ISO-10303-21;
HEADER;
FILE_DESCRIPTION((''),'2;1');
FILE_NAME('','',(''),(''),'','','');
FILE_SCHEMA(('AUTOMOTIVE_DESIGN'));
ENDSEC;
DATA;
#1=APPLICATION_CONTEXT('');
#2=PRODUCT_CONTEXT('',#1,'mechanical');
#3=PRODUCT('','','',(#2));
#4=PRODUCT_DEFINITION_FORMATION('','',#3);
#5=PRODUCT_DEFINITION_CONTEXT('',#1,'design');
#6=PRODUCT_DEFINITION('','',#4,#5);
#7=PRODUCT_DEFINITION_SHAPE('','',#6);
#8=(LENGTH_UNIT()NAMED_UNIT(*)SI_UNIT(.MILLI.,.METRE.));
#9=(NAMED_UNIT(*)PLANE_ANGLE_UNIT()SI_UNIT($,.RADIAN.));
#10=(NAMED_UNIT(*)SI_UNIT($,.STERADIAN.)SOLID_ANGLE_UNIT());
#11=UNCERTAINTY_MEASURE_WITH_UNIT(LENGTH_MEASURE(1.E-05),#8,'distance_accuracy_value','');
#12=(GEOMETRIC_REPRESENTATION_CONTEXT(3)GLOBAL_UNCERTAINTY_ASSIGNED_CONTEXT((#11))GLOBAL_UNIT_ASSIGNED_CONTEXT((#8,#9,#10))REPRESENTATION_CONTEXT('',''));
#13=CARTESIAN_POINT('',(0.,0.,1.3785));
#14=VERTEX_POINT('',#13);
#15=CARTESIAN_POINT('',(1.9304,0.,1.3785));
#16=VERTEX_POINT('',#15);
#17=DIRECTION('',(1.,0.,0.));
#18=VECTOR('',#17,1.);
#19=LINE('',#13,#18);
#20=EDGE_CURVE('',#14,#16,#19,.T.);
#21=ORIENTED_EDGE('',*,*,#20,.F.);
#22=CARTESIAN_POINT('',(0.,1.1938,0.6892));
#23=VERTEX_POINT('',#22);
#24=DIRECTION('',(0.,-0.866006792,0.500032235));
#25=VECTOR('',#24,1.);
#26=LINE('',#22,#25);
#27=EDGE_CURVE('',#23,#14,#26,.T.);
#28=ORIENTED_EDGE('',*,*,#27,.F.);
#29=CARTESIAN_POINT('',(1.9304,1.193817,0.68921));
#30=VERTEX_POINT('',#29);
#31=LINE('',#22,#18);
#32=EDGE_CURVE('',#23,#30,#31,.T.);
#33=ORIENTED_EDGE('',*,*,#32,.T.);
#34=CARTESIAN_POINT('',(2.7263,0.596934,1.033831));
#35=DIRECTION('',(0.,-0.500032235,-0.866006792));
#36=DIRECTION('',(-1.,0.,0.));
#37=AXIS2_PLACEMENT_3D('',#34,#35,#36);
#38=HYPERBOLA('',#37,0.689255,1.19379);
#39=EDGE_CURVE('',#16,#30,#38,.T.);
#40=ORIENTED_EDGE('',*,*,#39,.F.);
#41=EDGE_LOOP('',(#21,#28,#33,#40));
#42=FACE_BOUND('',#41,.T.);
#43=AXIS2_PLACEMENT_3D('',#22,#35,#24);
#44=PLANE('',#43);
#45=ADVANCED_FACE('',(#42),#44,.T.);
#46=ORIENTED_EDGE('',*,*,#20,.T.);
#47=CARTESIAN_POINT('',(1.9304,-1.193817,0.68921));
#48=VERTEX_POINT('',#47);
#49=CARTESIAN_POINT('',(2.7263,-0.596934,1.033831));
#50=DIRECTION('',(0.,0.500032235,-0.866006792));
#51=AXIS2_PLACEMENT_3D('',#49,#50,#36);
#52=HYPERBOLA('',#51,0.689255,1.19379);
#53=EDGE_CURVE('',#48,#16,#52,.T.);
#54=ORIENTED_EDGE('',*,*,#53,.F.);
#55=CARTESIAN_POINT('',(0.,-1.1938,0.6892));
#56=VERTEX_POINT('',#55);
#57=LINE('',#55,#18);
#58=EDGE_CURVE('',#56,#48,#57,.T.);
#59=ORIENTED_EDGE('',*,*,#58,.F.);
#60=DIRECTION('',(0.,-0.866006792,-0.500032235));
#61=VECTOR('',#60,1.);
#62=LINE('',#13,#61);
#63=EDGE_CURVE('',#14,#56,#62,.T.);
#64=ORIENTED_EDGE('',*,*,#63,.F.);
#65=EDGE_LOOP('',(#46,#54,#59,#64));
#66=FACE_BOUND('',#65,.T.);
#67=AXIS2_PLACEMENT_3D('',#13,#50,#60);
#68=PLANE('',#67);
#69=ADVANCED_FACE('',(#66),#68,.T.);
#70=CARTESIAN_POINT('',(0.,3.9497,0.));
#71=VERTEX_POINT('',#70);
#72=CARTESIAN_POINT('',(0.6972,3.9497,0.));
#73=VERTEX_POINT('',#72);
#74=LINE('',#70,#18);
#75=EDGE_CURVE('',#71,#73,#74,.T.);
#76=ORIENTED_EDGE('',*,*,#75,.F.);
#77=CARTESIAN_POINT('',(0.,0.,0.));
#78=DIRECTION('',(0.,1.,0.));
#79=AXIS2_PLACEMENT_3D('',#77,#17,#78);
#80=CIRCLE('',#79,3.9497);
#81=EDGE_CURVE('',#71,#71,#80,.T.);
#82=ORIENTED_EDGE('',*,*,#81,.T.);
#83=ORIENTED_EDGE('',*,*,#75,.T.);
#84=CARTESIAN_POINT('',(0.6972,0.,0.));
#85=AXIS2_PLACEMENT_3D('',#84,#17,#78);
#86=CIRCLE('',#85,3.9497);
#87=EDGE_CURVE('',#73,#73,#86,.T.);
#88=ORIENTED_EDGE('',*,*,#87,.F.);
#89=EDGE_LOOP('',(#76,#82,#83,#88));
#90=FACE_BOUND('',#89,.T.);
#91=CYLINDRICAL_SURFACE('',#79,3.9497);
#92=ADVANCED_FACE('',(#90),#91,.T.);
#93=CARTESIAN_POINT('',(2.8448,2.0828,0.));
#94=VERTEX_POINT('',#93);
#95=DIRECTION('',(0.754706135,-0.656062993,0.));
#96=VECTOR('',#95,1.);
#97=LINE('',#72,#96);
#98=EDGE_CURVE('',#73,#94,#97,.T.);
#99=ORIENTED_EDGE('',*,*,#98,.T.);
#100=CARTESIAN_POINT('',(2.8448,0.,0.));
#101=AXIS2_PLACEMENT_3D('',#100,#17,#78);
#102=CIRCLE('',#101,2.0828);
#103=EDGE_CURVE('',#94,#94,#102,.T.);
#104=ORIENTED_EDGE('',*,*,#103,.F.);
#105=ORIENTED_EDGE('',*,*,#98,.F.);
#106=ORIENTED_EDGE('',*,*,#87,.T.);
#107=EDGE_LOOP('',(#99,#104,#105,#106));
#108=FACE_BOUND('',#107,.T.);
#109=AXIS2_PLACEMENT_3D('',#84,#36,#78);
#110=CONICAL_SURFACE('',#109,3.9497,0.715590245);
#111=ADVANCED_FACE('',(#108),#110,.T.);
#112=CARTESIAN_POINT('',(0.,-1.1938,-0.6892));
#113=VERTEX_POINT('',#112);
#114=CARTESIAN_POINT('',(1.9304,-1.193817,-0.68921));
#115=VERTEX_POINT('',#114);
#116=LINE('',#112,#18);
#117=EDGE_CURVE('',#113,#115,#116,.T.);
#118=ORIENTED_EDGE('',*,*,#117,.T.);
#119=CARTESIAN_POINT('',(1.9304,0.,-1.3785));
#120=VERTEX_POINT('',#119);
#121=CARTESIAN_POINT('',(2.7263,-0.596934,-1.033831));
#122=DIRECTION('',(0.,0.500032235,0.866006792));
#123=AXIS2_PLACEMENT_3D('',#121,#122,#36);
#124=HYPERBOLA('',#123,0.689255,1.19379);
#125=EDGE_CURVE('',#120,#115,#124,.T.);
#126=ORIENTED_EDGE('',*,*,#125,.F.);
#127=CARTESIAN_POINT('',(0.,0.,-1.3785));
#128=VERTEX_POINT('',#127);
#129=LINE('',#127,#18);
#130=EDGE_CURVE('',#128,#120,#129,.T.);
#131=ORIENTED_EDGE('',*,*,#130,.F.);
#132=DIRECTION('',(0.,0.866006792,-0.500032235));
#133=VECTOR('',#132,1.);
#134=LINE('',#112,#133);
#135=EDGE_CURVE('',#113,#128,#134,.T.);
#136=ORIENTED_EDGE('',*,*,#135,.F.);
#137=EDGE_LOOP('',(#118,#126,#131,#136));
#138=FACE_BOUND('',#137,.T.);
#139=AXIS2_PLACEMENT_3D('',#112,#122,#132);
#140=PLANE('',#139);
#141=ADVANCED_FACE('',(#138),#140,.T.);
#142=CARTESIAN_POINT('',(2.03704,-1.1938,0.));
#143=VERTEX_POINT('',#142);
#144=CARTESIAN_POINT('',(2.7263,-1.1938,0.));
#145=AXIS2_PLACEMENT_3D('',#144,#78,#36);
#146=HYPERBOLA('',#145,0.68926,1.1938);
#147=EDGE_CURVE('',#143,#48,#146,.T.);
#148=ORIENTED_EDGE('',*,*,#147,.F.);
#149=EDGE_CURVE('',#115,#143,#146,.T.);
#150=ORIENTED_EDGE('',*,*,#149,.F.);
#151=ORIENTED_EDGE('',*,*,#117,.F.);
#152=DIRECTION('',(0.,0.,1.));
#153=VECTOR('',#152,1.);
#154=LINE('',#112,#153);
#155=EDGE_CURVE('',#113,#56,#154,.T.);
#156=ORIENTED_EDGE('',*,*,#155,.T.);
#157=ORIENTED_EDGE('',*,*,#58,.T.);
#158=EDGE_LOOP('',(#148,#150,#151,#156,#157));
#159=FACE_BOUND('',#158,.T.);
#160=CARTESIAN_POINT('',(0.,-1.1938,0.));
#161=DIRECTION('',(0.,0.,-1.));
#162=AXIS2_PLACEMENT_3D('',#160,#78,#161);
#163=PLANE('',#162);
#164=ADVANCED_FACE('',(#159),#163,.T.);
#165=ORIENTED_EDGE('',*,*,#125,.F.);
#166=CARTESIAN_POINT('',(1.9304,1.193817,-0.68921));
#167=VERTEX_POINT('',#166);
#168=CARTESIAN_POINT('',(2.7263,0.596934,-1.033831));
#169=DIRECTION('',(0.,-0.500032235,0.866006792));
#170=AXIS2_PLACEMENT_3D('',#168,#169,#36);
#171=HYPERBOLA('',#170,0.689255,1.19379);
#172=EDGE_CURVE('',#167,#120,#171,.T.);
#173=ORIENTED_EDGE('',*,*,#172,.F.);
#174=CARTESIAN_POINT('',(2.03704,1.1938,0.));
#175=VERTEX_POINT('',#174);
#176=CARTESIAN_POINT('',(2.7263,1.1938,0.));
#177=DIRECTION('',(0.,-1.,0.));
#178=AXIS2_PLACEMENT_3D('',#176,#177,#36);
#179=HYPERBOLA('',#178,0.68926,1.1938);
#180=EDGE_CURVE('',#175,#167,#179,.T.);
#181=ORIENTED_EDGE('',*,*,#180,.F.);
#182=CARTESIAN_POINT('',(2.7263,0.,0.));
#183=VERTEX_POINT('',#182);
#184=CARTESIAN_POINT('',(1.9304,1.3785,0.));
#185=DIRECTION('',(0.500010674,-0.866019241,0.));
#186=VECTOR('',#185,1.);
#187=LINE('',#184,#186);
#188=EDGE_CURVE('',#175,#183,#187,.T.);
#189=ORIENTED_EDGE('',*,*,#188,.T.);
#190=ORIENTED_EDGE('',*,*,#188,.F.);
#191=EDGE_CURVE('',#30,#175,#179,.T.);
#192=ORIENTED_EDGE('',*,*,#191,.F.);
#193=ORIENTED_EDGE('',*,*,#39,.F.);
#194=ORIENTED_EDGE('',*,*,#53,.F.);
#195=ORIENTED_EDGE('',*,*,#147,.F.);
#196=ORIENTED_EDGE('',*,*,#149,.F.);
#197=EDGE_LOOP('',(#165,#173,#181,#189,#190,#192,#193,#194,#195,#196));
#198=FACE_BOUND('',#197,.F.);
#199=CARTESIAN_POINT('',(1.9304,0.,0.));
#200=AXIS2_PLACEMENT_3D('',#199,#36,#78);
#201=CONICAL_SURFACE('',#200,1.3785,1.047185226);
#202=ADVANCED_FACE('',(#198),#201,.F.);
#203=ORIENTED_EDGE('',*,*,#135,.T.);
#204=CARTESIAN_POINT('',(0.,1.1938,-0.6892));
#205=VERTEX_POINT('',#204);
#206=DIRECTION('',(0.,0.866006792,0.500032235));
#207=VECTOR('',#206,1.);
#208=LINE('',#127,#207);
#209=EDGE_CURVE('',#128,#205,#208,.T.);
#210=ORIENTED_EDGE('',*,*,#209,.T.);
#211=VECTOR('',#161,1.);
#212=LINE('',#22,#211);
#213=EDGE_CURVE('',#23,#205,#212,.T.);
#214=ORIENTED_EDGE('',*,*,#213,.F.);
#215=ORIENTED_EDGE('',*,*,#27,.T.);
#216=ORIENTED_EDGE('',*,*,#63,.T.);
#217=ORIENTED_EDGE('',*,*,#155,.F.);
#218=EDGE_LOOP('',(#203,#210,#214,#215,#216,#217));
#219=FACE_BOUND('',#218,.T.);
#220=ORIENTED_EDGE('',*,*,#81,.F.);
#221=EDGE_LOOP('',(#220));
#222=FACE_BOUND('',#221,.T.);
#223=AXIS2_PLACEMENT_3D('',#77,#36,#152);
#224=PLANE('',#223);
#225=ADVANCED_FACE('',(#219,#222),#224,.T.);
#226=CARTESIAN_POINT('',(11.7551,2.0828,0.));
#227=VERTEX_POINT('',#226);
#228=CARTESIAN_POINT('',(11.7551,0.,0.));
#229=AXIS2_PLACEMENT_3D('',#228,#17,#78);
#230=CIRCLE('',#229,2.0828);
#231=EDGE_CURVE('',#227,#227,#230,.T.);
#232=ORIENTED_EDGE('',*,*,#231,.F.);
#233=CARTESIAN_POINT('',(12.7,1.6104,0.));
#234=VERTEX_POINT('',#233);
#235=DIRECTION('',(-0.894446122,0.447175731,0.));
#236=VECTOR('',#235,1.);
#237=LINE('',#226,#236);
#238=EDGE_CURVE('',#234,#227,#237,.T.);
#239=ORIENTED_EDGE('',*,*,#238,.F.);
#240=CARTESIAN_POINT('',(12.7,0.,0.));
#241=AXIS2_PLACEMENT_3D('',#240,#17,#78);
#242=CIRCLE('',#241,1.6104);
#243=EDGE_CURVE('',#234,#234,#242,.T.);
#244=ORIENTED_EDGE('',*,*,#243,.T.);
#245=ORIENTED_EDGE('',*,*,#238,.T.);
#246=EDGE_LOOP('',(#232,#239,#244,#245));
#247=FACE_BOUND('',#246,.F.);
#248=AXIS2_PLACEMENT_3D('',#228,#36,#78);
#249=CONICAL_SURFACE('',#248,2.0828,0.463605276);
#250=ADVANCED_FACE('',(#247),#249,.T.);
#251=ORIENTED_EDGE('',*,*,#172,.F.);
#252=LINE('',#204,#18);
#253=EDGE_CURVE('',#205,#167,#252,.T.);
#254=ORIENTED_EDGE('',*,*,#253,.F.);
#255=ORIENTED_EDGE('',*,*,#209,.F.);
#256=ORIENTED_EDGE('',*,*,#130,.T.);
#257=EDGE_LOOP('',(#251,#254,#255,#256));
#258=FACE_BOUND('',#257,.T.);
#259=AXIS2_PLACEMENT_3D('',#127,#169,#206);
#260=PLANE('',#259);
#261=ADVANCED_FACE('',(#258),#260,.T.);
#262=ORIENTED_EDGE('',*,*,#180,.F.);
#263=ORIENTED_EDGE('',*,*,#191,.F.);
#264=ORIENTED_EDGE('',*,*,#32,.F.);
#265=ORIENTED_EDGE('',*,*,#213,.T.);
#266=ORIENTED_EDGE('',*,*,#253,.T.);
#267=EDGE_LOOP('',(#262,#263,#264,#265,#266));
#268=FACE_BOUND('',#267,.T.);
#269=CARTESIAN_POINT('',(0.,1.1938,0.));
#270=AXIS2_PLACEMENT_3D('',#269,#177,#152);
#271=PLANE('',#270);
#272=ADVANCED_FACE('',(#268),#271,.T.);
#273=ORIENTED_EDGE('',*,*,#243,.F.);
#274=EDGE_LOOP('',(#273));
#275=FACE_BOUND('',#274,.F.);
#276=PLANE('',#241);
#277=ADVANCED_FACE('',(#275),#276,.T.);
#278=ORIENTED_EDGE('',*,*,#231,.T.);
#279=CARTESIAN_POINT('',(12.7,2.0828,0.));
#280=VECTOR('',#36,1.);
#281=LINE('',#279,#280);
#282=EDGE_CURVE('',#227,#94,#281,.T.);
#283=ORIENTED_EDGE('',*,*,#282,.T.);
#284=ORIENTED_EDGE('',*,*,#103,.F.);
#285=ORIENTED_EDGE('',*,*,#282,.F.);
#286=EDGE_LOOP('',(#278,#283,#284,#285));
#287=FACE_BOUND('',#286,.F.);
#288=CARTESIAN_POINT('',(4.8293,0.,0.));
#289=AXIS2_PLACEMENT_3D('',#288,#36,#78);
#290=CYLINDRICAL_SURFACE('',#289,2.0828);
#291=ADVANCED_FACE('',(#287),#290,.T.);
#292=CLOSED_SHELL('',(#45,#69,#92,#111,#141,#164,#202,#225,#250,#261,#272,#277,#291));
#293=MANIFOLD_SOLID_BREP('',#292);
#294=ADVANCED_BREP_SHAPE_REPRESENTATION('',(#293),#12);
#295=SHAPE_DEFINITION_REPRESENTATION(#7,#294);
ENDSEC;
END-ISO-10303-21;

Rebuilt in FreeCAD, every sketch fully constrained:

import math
import FreeCAD as App
import Part
import Sketcher
Q = App.Units.Quantity


def edges_at(feature, points):
    """Names of the edges that pass closest to the given points."""
    edges = feature.Shape.Edges
    near = lambda p: min(range(len(edges)), key=lambda i: edges[i].distToShape(Part.Vertex(*p))[0])
    return sorted({f"Edge{near(p) + 1}" for p in points})

doc = App.newDocument("Part")
params = doc.addObject("Spreadsheet::Sheet", "Params")
for row, (alias, value) in enumerate([
    ("sketch1_width", "0.076 in"),
    ("sketch1_height", "0.082 in"),
    ("revolution_angle", "360 deg"),
    ("chamfer_size", "0.0185984 in"),
    ("chamfer_size2", "0.0372008 in"),
], start=1):
    params.set(f"A{row}", alias)
    params.set(f"B{row}", "=" + value)
    params.setAlias(f"B{row}", alias)

body = doc.addObject("PartDesign::Body", "Body")

sketch1 = body.newObject("Sketcher::SketchObject", "Sketch")
sketch1.AttachmentSupport = (doc.getObject("XY_Plane"), [""])
sketch1.MapMode = "FlatFace"
sketch1.addGeometry([
    Part.LineSegment(App.Vector(2.7, 0, 0), App.Vector(12.7, 0, 0)),
    Part.LineSegment(App.Vector(12.7, 0, 0), App.Vector(12.7, 2.1, 0)),
    Part.LineSegment(App.Vector(12.7, 2.1, 0), App.Vector(2.8, 2.1, 0)),
    Part.LineSegment(App.Vector(2.8, 2.1, 0), App.Vector(0.7, 3.9, 0)),
    Part.LineSegment(App.Vector(0.7, 3.9, 0), App.Vector(0, 3.9, 0)),
    Part.LineSegment(App.Vector(0, 3.9, 0), App.Vector(0, 1.4, 0)),
    Part.LineSegment(App.Vector(0, 1.4, 0), App.Vector(1.9, 1.4, 0)),
    Part.LineSegment(App.Vector(1.9, 1.4, 0), App.Vector(2.7, 0, 0)),
], False)
sketch1.addConstraint([
    Sketcher.Constraint("Coincident", 0, 2, 1, 1),
    Sketcher.Constraint("Coincident", 1, 2, 2, 1),
    Sketcher.Constraint("Coincident", 2, 2, 3, 1),
    Sketcher.Constraint("Coincident", 3, 2, 4, 1),
    Sketcher.Constraint("Coincident", 4, 2, 5, 1),
    Sketcher.Constraint("Coincident", 5, 2, 6, 1),
    Sketcher.Constraint("Coincident", 6, 2, 7, 1),
    Sketcher.Constraint("Coincident", 7, 2, 0, 1),
    Sketcher.Constraint("Horizontal", 0),
    Sketcher.Constraint("Vertical", 1),
    Sketcher.Constraint("Horizontal", 2),
    Sketcher.Constraint("Horizontal", 4),
    Sketcher.Constraint("Vertical", 5),
    Sketcher.Constraint("Horizontal", 6),
    Sketcher.Constraint("PointOnObject", 0, 2, -1),
    Sketcher.Constraint("PointOnObject", 4, 2, -2),
    Sketcher.Constraint("DistanceX", -1, 1, 0, 2, Q("0.5 in")),
    Sketcher.Constraint("DistanceX", 6, 1, 6, 2, Q("0.076 in")),
    Sketcher.Constraint("DistanceX", -1, 1, 2, 2, Q("0.112 in")),
    Sketcher.Constraint("Angle", 3, Q("138.9997 deg")),
    Sketcher.Constraint("Angle", 7, Q("-59.9993 deg")),
    Sketcher.Constraint("DistanceY", 1, 1, 1, 2, Q("0.082 in")),
    Sketcher.Constraint("DistanceX", 0, 1, 0, 2, 9.9737),
    Sketcher.Constraint("DistanceX", 4, 2, 4, 1, 0.6972),
])
sketch1.setExpression("Constraints[17]", "Params.sketch1_width")
sketch1.setExpression("Constraints[21]", "Params.sketch1_height")
revolution = body.newObject("PartDesign::Revolution", "Revolution")
revolution.Profile = sketch1
revolution.ReferenceAxis = (sketch1, ["H_Axis"])
revolution.setExpression("Angle", "Params.revolution_angle")

sketch2 = body.newObject("Sketcher::SketchObject", "Sketch001")
sketch2.AttachmentSupport = (doc.getObject("YZ_Plane"), [""])
sketch2.MapMode = "FlatFace"
sketch2.addGeometry([
    Part.LineSegment(App.Vector(1.2, 0.7, 0), App.Vector(0, 1.4, 0)),
    Part.ArcOfCircle(Part.Circle(App.Vector(0, 0, 0), App.Vector(0, 0, 1), 1.4), math.radians(30), math.radians(90)),
    Part.ArcOfCircle(Part.Circle(App.Vector(0, 0, 0), App.Vector(0, 0, 1), 1.4), math.radians(90), math.radians(150)),
    Part.LineSegment(App.Vector(0, 1.4, 0), App.Vector(-1.2, 0.7, 0)),
    Part.ArcOfCircle(Part.Circle(App.Vector(0, 0, 0), App.Vector(0, 0, 1), 1.4), math.radians(-30), math.radians(30)),
    Part.LineSegment(App.Vector(1.2, 0.7, 0), App.Vector(1.2, -0.7, 0)),
    Part.LineSegment(App.Vector(-1.2, 0.7, 0), App.Vector(-1.2, -0.7, 0)),
    Part.ArcOfCircle(Part.Circle(App.Vector(0, 0, 0), App.Vector(0, 0, 1), 1.4), math.radians(150), math.radians(210)),
    Part.LineSegment(App.Vector(-1.2, -0.7, 0), App.Vector(0, -1.4, 0)),
    Part.ArcOfCircle(Part.Circle(App.Vector(0, 0, 0), App.Vector(0, 0, 1), 1.4), math.radians(-150), math.radians(-90)),
    Part.ArcOfCircle(Part.Circle(App.Vector(0, 0, 0), App.Vector(0, 0, 1), 1.4), math.radians(-90), math.radians(-30)),
    Part.LineSegment(App.Vector(0, -1.4, 0), App.Vector(1.2, -0.7, 0)),
], False)
sketch2.addConstraint([
    Sketcher.Constraint("Coincident", 0, 1, 1, 1),
    Sketcher.Constraint("Coincident", 1, 2, 0, 2),
    Sketcher.Constraint("Coincident", 2, 1, 3, 1),
    Sketcher.Constraint("Coincident", 3, 2, 2, 2),
    Sketcher.Constraint("Coincident", 4, 1, 5, 2),
    Sketcher.Constraint("Coincident", 5, 1, 4, 2),
    Sketcher.Constraint("Coincident", 6, 1, 7, 1),
    Sketcher.Constraint("Coincident", 7, 2, 6, 2),
    Sketcher.Constraint("Coincident", 8, 1, 9, 1),
    Sketcher.Constraint("Coincident", 9, 2, 8, 2),
    Sketcher.Constraint("Coincident", 10, 1, 11, 1),
    Sketcher.Constraint("Coincident", 11, 2, 10, 2),
    Sketcher.Constraint("Vertical", 5),
    Sketcher.Constraint("Vertical", 6),
    Sketcher.Constraint("Coincident", 1, 3, -1, 1),
    Sketcher.Constraint("Coincident", 2, 3, -1, 1),
    Sketcher.Constraint("Coincident", 4, 3, -1, 1),
    Sketcher.Constraint("Coincident", 7, 3, -1, 1),
    Sketcher.Constraint("Coincident", 9, 3, -1, 1),
    Sketcher.Constraint("Coincident", 10, 3, -1, 1),
    Sketcher.Constraint("Coincident", 2, 1, 1, 2),
    Sketcher.Constraint("Coincident", 5, 1, 0, 1),
    Sketcher.Constraint("Coincident", 6, 1, 3, 2),
    Sketcher.Constraint("Coincident", 8, 1, 7, 2),
    Sketcher.Constraint("Coincident", 10, 1, 9, 2),
    Sketcher.Constraint("PointOnObject", 1, 2, -2),
    Sketcher.Constraint("PointOnObject", 9, 2, -2),
    Sketcher.Constraint("Parallel", 0, 8),
    Sketcher.Constraint("Parallel", 3, 11),
    Sketcher.Constraint("Radius", 1, 1.3785),
    Sketcher.Constraint("DistanceX", -1, 1, 0, 1, Q("0.047 in")),
])
pad1 = body.newObject("PartDesign::Pad", "Pad")
pad1.Profile = sketch2
pad1.Type = "UpToFirst"
doc.recompute()

chamfer = body.newObject("PartDesign::Chamfer", "Chamfer")
chamfer.Base = (pad1, edges_at(pad1, [(12.7, -2.083, 0)]))
chamfer.ChamferType = "Two distances"
chamfer.setExpression("Size", "Params.chamfer_size")
chamfer.setExpression("Size2", "Params.chamfer_size2")

doc.recompute()
